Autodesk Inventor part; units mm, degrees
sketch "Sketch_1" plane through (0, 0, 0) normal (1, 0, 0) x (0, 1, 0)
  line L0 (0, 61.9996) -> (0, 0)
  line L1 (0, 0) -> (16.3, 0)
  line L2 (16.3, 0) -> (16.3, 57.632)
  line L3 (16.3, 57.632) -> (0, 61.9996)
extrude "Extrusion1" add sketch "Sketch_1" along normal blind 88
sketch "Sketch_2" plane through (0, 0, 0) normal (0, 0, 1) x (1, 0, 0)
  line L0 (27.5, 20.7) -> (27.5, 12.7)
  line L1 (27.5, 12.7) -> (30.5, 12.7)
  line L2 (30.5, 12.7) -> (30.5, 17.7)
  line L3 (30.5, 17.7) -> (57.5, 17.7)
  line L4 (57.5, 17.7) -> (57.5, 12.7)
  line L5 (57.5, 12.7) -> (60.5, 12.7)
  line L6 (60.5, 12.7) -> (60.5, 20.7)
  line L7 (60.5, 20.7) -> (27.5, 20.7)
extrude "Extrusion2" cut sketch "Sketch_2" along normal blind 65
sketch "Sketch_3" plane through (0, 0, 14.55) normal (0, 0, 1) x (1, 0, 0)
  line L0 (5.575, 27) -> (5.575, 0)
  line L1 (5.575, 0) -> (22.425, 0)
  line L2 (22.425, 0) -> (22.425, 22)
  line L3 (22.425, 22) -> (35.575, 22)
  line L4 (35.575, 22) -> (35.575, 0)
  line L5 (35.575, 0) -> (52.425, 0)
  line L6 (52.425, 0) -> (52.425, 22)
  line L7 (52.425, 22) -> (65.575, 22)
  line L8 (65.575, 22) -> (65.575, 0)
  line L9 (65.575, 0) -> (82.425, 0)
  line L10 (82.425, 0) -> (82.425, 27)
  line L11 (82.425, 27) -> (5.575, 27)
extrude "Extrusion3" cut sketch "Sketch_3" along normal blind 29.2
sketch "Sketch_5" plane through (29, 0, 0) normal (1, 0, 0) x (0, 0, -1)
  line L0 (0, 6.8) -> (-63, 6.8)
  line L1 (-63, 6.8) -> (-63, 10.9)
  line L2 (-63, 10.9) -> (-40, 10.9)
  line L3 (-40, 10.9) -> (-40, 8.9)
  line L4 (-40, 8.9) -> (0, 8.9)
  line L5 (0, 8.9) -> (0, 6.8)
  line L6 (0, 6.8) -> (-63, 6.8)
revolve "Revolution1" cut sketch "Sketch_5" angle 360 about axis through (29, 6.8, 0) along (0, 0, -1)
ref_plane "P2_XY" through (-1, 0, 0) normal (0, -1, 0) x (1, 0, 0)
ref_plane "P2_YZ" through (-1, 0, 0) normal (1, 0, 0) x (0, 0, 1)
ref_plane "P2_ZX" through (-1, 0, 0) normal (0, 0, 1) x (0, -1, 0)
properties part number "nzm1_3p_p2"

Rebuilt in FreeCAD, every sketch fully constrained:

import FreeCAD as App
import Part
import Sketcher
from FreeCAD import Vector
Q = App.Units.Quantity


def add_polygon(sketch, points):
    """Adds a closed chain of lines whose ends are joined by coincident constraints."""
    first, n = sketch.GeometryCount, len(points)
    for a, b in zip(points, points[1:] + points[:1]):
        sketch.addGeometry(Part.LineSegment(App.Vector(*a, 0), App.Vector(*b, 0)), False)
    for i in range(n):
        sketch.addConstraint(Sketcher.Constraint("Coincident", first + i, 2, first + (i + 1) % n, 1))

doc = App.newDocument("Part")
body = doc.addObject("PartDesign::Body", "Body")

# Sketch on YZ plane
sketch1 = body.newObject("Sketcher::SketchObject", "Sketch")
sketch1.AttachmentSupport = (doc.getObject("YZ_Plane"), [""])
sketch1.MapMode = "FlatFace"
add_polygon(sketch1, [(16, 58), (0, 62), (0, 0), (16, 0)])  # lines 0-3
sketch1.addConstraint([
    Sketcher.Constraint("Vertical", 1),
    Sketcher.Constraint("Horizontal", 2),
    Sketcher.Constraint("Vertical", 3),
    Sketcher.Constraint("Coincident", 1, 2, -1, 1),
    Sketcher.Constraint("Angle", 0, Q("165 deg")),
    Sketcher.Constraint("DistanceX", 2, 1, 2, 2, Q("16.3 mm")),
    Sketcher.Constraint("DistanceY", 3, 1, 3, 2, Q("57.632 mm")),
])
pad1 = body.newObject("PartDesign::Pad", "Pad")
pad1.Profile = sketch1
pad1.Length = 88

# Sketch on XY plane
sketch2 = body.newObject("Sketcher::SketchObject", "Sketch001")
sketch2.AttachmentSupport = (doc.getObject("XY_Plane"), [""])
sketch2.MapMode = "FlatFace"
add_polygon(sketch2, [(60.5, 20.7), (27.5, 20.7), (27.5, 12.7), (30.5, 12.7), (30.5, 17.7), (57.5, 17.7), (57.5, 12.7), (60.5, 12.7)])  # lines 0-7
sketch2.addConstraint([
    Sketcher.Constraint("Horizontal", 0),
    Sketcher.Constraint("Vertical", 1),
    Sketcher.Constraint("Horizontal", 2),
    Sketcher.Constraint("Vertical", 3),
    Sketcher.Constraint("Horizontal", 4),
    Sketcher.Constraint("Vertical", 5),
    Sketcher.Constraint("Horizontal", 6),
    Sketcher.Constraint("Vertical", 7),
    Sketcher.Constraint("Horizontal", 2, 2, 5, 2),
    Sketcher.Constraint("Equal", 2, 6),
    Sketcher.Constraint("DistanceX", 0, 2, 0, 1, Q("33 mm")),
    Sketcher.Constraint("DistanceX", 2, 1, 2, 2, Q("3 mm")),
    Sketcher.Constraint("DistanceY", 1, 2, 1, 1, Q("8 mm")),
    Sketcher.Constraint("DistanceY", 3, 1, 3, 2, Q("5 mm")),
    Sketcher.Constraint("DistanceX", -1, 1, 0, 2, Q("27.5 mm")),
    Sketcher.Constraint("DistanceY", -1, 1, 0, 2, Q("20.7 mm")),
])
pocket1 = body.newObject("PartDesign::Pocket", "Pocket")
pocket1.Profile = sketch2
pocket1.Length = 65
pocket1.Reversed = True

# Sketch on XY plane
sketch3 = body.newObject("Sketcher::SketchObject", "Sketch002")
sketch3.AttachmentSupport = (doc.getObject("XY_Plane"), [""])
sketch3.MapMode = "FlatFace"
sketch3.AttachmentOffset = App.Placement(Vector(0, 0, 14.55), App.Rotation())
add_polygon(sketch3, [(82, 27), (6, 27), (6, 0), (22, 0), (22, 22), (36, 22), (36, 0), (52, 0), (52, 22), (66, 22), (66, 0), (82, 0)])  # lines 0-11
sketch3.addConstraint([
    Sketcher.Constraint("Horizontal", 0),
    Sketcher.Constraint("Vertical", 1),
    Sketcher.Constraint("Horizontal", 2),
    Sketcher.Constraint("Vertical", 3),
    Sketcher.Constraint("Horizontal", 4),
    Sketcher.Constraint("Vertical", 5),
    Sketcher.Constraint("Horizontal", 6),
    Sketcher.Constraint("Vertical", 7),
    Sketcher.Constraint("Horizontal", 8),
    Sketcher.Constraint("Vertical", 9),
    Sketcher.Constraint("Horizontal", 10),
    Sketcher.Constraint("Vertical", 11),
    Sketcher.Constraint("PointOnObject", 1, 2, -1),
    Sketcher.Constraint("PointOnObject", 5, 2, -1),
    Sketcher.Constraint("PointOnObject", 9, 2, -1),
    Sketcher.Constraint("Horizontal", 4, 2, 7, 2),
    Sketcher.Constraint("Equal", 2, 6),
    Sketcher.Constraint("Equal", 4, 8),
    Sketcher.Constraint("Equal", 6, 10),
    Sketcher.Constraint("DistanceY", 1, 2, 1, 1, Q("27 mm")),
    Sketcher.Constraint("DistanceY", 3, 1, 3, 2, Q("22 mm")),
    Sketcher.Constraint("DistanceX", 0, 2, 4, 2, Q("30 mm")),
    Sketcher.Constraint("DistanceX", 0, 2, 0, 1, Q("76.85 mm")),
    Sketcher.Constraint("DistanceX", -1, 1, 0, 2, Q("5.575 mm")),
])
pocket2 = body.newObject("PartDesign::Pocket", "Pocket001")
pocket2.Profile = sketch3
pocket2.Length = 29.2
pocket2.Reversed = True

# Sketch on YZ plane
sketch4 = body.newObject("Sketcher::SketchObject", "Sketch003")
sketch4.AttachmentSupport = (doc.getObject("YZ_Plane"), [""])
sketch4.MapMode = "FlatFace"
sketch4.AttachmentOffset = App.Placement(Vector(0, 0, 29), App.Rotation())
add_polygon(sketch4, [(6.8, 63), (6.8, 0), (8.9, 0), (8.9, 40), (10.9, 40), (10.9, 63)])  # lines 0-5
sketch4.addGeometry(Part.LineSegment(Vector(6.8, 63, 0), Vector(6.8, 0, 0)), True)  # axis
sketch4.addConstraint([
    Sketcher.Constraint("Vertical", 0),
    Sketcher.Constraint("Horizontal", 1),
    Sketcher.Constraint("Vertical", 2),
    Sketcher.Constraint("Horizontal", 3),
    Sketcher.Constraint("Vertical", 4),
    Sketcher.Constraint("Horizontal", 5),
    Sketcher.Constraint("Vertical", 6),
    Sketcher.Constraint("Coincident", 6, 1, 5, 2),
    Sketcher.Constraint("PointOnObject", 0, 2, -1),
    Sketcher.Constraint("PointOnObject", 6, 2, -1),
    Sketcher.Constraint("DistanceX", 3, 1, 3, 2, Q("2 mm")),
    Sketcher.Constraint("DistanceY", 0, 2, 0, 1, Q("63 mm")),
    Sketcher.Constraint("DistanceY", 2, 1, 2, 2, Q("40 mm")),
    Sketcher.Constraint("DistanceX", 1, 1, 1, 2, Q("2.1 mm")),
    Sketcher.Constraint("DistanceX", -1, 1, 0, 2, Q("6.8 mm")),
])
groove = body.newObject("PartDesign::Groove", "Groove")
groove.Profile = sketch4
groove.ReferenceAxis = (sketch4, ["Axis0"])
groove.Angle = 360

doc.recompute()
